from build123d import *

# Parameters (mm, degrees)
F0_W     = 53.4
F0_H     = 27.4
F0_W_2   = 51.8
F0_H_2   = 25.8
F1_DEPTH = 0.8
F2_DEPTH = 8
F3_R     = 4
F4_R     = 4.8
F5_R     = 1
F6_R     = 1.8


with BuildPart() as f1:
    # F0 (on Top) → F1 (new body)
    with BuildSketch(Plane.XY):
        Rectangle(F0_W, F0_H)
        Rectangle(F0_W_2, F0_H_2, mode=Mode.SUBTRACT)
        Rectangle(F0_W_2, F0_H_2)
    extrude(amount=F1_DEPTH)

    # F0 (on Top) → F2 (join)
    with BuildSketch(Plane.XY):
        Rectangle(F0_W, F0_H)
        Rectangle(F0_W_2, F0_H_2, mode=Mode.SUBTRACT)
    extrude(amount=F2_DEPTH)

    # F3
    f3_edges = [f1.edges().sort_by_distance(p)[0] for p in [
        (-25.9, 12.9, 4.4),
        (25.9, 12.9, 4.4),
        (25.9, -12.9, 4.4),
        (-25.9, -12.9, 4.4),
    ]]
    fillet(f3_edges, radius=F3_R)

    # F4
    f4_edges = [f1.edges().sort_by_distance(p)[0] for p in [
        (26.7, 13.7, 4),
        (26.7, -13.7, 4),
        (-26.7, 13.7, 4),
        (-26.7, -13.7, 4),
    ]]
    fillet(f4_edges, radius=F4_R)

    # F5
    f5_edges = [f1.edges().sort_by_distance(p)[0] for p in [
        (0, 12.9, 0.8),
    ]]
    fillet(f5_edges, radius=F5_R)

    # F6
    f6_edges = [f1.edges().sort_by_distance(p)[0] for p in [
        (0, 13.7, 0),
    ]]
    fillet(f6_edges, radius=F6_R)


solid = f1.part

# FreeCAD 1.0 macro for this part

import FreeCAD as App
import Part
import Sketcher

V = App.Vector


def edges_at(feature, points):
    """Names of the edges that pass closest to the given points."""
    edges = feature.Shape.Edges
    near = lambda p: min(range(len(edges)), key=lambda i: edges[i].distToShape(Part.Vertex(*p))[0])
    return sorted({f"Edge{near(p) + 1}" for p in points})


def add_polygon(sketch, points):
    """Adds a closed chain of lines whose ends are joined by coincident constraints."""
    first, n = sketch.GeometryCount, len(points)
    for a, b in zip(points, points[1:] + points[:1]):
        sketch.addGeometry(Part.LineSegment(App.Vector(*a, 0), App.Vector(*b, 0)), False)
    for i in range(n):
        sketch.addConstraint(Sketcher.Constraint("Coincident", first + i, 2, first + (i + 1) % n, 1))

doc = App.newDocument("Part")
body = doc.addObject("PartDesign::Body", "Body")

# Sketch on XY plane
sketch1 = body.newObject("Sketcher::SketchObject", "Sketch")
sketch1.AttachmentSupport = (doc.getObject("XY_Plane"), [""])
sketch1.MapMode = "FlatFace"
add_polygon(sketch1, [(-26.7, 13.7), (-26.7, -13.7), (26.7, -13.7), (26.7, 13.7)])  # lines 0-3
sketch1.addConstraint([
    Sketcher.Constraint("Vertical", 0),
    Sketcher.Constraint("Horizontal", 1),
    Sketcher.Constraint("Vertical", 2),
    Sketcher.Constraint("Horizontal", 3),
    Sketcher.Constraint("Symmetric", 0, 2, 2, 2, -1, 1),
    Sketcher.Constraint("DistanceX", 1, 1, 1, 2, 53.4),
    Sketcher.Constraint("DistanceY", 0, 2, 0, 1, 27.4),
])
pad1 = body.newObject("PartDesign::Pad", "Pad")
pad1.Profile = sketch1
pad1.Length = 0.8

# Sketch on XY plane
sketch2 = body.newObject("Sketcher::SketchObject", "Sketch001")
sketch2.AttachmentSupport = (doc.getObject("XY_Plane"), [""])
sketch2.MapMode = "FlatFace"
add_polygon(sketch2, [(-26.7, 13.7), (-26.7, -13.7), (26.7, -13.7), (26.7, 13.7)])  # lines 0-3
add_polygon(sketch2, [(25.9, -12.9), (-25.9, -12.9), (-25.9, 12.9), (25.9, 12.9)])  # lines 4-7
sketch2.addConstraint([
    Sketcher.Constraint("Vertical", 0),
    Sketcher.Constraint("Horizontal", 1),
    Sketcher.Constraint("Vertical", 2),
    Sketcher.Constraint("Horizontal", 3),
    Sketcher.Constraint("Horizontal", 4),
    Sketcher.Constraint("Vertical", 5),
    Sketcher.Constraint("Horizontal", 6),
    Sketcher.Constraint("Vertical", 7),
    Sketcher.Constraint("Symmetric", 0, 2, 2, 2, -1, 1),
    Sketcher.Constraint("Symmetric", 4, 2, 6, 2, -1, 1),
    Sketcher.Constraint("DistanceX", 1, 1, 1, 2, 53.4),
    Sketcher.Constraint("DistanceX", 4, 2, 4, 1, 51.8),
    Sketcher.Constraint("DistanceY", 0, 2, 0, 1, 27.4),
    Sketcher.Constraint("DistanceY", 5, 1, 5, 2, 25.8),
])
pad2 = body.newObject("PartDesign::Pad", "Pad001")
pad2.Profile = sketch2
pad2.Length = 8
doc.recompute()

fillet = body.newObject("PartDesign::Fillet", "Fillet")
fillet.Base = (pad2, edges_at(pad2, [
    (-25.9, 12.9, 4.4),
    (25.9, 12.9, 4.4),
    (25.9, -12.9, 4.4),
    (-25.9, -12.9, 4.4),
]))
fillet.Radius = 4
doc.recompute()

fillet2 = body.newObject("PartDesign::Fillet", "Fillet001")
fillet2.Base = (fillet, edges_at(fillet, [
    (26.7, 13.7, 4),
    (26.7, -13.7, 4),
    (-26.7, 13.7, 4),
    (-26.7, -13.7, 4),
]))
fillet2.Radius = 4.8
doc.recompute()

fillet3 = body.newObject("PartDesign::Fillet", "Fillet002")
fillet3.Base = (fillet2, edges_at(fillet2, [(0, 12.9, 0.8)]))
fillet3.Radius = 1
doc.recompute()

fillet4 = body.newObject("PartDesign::Fillet", "Fillet003")
fillet4.Base = (fillet3, edges_at(fillet3, [(0, 13.7, 0)]))
fillet4.Radius = 1.8

doc.recompute()
